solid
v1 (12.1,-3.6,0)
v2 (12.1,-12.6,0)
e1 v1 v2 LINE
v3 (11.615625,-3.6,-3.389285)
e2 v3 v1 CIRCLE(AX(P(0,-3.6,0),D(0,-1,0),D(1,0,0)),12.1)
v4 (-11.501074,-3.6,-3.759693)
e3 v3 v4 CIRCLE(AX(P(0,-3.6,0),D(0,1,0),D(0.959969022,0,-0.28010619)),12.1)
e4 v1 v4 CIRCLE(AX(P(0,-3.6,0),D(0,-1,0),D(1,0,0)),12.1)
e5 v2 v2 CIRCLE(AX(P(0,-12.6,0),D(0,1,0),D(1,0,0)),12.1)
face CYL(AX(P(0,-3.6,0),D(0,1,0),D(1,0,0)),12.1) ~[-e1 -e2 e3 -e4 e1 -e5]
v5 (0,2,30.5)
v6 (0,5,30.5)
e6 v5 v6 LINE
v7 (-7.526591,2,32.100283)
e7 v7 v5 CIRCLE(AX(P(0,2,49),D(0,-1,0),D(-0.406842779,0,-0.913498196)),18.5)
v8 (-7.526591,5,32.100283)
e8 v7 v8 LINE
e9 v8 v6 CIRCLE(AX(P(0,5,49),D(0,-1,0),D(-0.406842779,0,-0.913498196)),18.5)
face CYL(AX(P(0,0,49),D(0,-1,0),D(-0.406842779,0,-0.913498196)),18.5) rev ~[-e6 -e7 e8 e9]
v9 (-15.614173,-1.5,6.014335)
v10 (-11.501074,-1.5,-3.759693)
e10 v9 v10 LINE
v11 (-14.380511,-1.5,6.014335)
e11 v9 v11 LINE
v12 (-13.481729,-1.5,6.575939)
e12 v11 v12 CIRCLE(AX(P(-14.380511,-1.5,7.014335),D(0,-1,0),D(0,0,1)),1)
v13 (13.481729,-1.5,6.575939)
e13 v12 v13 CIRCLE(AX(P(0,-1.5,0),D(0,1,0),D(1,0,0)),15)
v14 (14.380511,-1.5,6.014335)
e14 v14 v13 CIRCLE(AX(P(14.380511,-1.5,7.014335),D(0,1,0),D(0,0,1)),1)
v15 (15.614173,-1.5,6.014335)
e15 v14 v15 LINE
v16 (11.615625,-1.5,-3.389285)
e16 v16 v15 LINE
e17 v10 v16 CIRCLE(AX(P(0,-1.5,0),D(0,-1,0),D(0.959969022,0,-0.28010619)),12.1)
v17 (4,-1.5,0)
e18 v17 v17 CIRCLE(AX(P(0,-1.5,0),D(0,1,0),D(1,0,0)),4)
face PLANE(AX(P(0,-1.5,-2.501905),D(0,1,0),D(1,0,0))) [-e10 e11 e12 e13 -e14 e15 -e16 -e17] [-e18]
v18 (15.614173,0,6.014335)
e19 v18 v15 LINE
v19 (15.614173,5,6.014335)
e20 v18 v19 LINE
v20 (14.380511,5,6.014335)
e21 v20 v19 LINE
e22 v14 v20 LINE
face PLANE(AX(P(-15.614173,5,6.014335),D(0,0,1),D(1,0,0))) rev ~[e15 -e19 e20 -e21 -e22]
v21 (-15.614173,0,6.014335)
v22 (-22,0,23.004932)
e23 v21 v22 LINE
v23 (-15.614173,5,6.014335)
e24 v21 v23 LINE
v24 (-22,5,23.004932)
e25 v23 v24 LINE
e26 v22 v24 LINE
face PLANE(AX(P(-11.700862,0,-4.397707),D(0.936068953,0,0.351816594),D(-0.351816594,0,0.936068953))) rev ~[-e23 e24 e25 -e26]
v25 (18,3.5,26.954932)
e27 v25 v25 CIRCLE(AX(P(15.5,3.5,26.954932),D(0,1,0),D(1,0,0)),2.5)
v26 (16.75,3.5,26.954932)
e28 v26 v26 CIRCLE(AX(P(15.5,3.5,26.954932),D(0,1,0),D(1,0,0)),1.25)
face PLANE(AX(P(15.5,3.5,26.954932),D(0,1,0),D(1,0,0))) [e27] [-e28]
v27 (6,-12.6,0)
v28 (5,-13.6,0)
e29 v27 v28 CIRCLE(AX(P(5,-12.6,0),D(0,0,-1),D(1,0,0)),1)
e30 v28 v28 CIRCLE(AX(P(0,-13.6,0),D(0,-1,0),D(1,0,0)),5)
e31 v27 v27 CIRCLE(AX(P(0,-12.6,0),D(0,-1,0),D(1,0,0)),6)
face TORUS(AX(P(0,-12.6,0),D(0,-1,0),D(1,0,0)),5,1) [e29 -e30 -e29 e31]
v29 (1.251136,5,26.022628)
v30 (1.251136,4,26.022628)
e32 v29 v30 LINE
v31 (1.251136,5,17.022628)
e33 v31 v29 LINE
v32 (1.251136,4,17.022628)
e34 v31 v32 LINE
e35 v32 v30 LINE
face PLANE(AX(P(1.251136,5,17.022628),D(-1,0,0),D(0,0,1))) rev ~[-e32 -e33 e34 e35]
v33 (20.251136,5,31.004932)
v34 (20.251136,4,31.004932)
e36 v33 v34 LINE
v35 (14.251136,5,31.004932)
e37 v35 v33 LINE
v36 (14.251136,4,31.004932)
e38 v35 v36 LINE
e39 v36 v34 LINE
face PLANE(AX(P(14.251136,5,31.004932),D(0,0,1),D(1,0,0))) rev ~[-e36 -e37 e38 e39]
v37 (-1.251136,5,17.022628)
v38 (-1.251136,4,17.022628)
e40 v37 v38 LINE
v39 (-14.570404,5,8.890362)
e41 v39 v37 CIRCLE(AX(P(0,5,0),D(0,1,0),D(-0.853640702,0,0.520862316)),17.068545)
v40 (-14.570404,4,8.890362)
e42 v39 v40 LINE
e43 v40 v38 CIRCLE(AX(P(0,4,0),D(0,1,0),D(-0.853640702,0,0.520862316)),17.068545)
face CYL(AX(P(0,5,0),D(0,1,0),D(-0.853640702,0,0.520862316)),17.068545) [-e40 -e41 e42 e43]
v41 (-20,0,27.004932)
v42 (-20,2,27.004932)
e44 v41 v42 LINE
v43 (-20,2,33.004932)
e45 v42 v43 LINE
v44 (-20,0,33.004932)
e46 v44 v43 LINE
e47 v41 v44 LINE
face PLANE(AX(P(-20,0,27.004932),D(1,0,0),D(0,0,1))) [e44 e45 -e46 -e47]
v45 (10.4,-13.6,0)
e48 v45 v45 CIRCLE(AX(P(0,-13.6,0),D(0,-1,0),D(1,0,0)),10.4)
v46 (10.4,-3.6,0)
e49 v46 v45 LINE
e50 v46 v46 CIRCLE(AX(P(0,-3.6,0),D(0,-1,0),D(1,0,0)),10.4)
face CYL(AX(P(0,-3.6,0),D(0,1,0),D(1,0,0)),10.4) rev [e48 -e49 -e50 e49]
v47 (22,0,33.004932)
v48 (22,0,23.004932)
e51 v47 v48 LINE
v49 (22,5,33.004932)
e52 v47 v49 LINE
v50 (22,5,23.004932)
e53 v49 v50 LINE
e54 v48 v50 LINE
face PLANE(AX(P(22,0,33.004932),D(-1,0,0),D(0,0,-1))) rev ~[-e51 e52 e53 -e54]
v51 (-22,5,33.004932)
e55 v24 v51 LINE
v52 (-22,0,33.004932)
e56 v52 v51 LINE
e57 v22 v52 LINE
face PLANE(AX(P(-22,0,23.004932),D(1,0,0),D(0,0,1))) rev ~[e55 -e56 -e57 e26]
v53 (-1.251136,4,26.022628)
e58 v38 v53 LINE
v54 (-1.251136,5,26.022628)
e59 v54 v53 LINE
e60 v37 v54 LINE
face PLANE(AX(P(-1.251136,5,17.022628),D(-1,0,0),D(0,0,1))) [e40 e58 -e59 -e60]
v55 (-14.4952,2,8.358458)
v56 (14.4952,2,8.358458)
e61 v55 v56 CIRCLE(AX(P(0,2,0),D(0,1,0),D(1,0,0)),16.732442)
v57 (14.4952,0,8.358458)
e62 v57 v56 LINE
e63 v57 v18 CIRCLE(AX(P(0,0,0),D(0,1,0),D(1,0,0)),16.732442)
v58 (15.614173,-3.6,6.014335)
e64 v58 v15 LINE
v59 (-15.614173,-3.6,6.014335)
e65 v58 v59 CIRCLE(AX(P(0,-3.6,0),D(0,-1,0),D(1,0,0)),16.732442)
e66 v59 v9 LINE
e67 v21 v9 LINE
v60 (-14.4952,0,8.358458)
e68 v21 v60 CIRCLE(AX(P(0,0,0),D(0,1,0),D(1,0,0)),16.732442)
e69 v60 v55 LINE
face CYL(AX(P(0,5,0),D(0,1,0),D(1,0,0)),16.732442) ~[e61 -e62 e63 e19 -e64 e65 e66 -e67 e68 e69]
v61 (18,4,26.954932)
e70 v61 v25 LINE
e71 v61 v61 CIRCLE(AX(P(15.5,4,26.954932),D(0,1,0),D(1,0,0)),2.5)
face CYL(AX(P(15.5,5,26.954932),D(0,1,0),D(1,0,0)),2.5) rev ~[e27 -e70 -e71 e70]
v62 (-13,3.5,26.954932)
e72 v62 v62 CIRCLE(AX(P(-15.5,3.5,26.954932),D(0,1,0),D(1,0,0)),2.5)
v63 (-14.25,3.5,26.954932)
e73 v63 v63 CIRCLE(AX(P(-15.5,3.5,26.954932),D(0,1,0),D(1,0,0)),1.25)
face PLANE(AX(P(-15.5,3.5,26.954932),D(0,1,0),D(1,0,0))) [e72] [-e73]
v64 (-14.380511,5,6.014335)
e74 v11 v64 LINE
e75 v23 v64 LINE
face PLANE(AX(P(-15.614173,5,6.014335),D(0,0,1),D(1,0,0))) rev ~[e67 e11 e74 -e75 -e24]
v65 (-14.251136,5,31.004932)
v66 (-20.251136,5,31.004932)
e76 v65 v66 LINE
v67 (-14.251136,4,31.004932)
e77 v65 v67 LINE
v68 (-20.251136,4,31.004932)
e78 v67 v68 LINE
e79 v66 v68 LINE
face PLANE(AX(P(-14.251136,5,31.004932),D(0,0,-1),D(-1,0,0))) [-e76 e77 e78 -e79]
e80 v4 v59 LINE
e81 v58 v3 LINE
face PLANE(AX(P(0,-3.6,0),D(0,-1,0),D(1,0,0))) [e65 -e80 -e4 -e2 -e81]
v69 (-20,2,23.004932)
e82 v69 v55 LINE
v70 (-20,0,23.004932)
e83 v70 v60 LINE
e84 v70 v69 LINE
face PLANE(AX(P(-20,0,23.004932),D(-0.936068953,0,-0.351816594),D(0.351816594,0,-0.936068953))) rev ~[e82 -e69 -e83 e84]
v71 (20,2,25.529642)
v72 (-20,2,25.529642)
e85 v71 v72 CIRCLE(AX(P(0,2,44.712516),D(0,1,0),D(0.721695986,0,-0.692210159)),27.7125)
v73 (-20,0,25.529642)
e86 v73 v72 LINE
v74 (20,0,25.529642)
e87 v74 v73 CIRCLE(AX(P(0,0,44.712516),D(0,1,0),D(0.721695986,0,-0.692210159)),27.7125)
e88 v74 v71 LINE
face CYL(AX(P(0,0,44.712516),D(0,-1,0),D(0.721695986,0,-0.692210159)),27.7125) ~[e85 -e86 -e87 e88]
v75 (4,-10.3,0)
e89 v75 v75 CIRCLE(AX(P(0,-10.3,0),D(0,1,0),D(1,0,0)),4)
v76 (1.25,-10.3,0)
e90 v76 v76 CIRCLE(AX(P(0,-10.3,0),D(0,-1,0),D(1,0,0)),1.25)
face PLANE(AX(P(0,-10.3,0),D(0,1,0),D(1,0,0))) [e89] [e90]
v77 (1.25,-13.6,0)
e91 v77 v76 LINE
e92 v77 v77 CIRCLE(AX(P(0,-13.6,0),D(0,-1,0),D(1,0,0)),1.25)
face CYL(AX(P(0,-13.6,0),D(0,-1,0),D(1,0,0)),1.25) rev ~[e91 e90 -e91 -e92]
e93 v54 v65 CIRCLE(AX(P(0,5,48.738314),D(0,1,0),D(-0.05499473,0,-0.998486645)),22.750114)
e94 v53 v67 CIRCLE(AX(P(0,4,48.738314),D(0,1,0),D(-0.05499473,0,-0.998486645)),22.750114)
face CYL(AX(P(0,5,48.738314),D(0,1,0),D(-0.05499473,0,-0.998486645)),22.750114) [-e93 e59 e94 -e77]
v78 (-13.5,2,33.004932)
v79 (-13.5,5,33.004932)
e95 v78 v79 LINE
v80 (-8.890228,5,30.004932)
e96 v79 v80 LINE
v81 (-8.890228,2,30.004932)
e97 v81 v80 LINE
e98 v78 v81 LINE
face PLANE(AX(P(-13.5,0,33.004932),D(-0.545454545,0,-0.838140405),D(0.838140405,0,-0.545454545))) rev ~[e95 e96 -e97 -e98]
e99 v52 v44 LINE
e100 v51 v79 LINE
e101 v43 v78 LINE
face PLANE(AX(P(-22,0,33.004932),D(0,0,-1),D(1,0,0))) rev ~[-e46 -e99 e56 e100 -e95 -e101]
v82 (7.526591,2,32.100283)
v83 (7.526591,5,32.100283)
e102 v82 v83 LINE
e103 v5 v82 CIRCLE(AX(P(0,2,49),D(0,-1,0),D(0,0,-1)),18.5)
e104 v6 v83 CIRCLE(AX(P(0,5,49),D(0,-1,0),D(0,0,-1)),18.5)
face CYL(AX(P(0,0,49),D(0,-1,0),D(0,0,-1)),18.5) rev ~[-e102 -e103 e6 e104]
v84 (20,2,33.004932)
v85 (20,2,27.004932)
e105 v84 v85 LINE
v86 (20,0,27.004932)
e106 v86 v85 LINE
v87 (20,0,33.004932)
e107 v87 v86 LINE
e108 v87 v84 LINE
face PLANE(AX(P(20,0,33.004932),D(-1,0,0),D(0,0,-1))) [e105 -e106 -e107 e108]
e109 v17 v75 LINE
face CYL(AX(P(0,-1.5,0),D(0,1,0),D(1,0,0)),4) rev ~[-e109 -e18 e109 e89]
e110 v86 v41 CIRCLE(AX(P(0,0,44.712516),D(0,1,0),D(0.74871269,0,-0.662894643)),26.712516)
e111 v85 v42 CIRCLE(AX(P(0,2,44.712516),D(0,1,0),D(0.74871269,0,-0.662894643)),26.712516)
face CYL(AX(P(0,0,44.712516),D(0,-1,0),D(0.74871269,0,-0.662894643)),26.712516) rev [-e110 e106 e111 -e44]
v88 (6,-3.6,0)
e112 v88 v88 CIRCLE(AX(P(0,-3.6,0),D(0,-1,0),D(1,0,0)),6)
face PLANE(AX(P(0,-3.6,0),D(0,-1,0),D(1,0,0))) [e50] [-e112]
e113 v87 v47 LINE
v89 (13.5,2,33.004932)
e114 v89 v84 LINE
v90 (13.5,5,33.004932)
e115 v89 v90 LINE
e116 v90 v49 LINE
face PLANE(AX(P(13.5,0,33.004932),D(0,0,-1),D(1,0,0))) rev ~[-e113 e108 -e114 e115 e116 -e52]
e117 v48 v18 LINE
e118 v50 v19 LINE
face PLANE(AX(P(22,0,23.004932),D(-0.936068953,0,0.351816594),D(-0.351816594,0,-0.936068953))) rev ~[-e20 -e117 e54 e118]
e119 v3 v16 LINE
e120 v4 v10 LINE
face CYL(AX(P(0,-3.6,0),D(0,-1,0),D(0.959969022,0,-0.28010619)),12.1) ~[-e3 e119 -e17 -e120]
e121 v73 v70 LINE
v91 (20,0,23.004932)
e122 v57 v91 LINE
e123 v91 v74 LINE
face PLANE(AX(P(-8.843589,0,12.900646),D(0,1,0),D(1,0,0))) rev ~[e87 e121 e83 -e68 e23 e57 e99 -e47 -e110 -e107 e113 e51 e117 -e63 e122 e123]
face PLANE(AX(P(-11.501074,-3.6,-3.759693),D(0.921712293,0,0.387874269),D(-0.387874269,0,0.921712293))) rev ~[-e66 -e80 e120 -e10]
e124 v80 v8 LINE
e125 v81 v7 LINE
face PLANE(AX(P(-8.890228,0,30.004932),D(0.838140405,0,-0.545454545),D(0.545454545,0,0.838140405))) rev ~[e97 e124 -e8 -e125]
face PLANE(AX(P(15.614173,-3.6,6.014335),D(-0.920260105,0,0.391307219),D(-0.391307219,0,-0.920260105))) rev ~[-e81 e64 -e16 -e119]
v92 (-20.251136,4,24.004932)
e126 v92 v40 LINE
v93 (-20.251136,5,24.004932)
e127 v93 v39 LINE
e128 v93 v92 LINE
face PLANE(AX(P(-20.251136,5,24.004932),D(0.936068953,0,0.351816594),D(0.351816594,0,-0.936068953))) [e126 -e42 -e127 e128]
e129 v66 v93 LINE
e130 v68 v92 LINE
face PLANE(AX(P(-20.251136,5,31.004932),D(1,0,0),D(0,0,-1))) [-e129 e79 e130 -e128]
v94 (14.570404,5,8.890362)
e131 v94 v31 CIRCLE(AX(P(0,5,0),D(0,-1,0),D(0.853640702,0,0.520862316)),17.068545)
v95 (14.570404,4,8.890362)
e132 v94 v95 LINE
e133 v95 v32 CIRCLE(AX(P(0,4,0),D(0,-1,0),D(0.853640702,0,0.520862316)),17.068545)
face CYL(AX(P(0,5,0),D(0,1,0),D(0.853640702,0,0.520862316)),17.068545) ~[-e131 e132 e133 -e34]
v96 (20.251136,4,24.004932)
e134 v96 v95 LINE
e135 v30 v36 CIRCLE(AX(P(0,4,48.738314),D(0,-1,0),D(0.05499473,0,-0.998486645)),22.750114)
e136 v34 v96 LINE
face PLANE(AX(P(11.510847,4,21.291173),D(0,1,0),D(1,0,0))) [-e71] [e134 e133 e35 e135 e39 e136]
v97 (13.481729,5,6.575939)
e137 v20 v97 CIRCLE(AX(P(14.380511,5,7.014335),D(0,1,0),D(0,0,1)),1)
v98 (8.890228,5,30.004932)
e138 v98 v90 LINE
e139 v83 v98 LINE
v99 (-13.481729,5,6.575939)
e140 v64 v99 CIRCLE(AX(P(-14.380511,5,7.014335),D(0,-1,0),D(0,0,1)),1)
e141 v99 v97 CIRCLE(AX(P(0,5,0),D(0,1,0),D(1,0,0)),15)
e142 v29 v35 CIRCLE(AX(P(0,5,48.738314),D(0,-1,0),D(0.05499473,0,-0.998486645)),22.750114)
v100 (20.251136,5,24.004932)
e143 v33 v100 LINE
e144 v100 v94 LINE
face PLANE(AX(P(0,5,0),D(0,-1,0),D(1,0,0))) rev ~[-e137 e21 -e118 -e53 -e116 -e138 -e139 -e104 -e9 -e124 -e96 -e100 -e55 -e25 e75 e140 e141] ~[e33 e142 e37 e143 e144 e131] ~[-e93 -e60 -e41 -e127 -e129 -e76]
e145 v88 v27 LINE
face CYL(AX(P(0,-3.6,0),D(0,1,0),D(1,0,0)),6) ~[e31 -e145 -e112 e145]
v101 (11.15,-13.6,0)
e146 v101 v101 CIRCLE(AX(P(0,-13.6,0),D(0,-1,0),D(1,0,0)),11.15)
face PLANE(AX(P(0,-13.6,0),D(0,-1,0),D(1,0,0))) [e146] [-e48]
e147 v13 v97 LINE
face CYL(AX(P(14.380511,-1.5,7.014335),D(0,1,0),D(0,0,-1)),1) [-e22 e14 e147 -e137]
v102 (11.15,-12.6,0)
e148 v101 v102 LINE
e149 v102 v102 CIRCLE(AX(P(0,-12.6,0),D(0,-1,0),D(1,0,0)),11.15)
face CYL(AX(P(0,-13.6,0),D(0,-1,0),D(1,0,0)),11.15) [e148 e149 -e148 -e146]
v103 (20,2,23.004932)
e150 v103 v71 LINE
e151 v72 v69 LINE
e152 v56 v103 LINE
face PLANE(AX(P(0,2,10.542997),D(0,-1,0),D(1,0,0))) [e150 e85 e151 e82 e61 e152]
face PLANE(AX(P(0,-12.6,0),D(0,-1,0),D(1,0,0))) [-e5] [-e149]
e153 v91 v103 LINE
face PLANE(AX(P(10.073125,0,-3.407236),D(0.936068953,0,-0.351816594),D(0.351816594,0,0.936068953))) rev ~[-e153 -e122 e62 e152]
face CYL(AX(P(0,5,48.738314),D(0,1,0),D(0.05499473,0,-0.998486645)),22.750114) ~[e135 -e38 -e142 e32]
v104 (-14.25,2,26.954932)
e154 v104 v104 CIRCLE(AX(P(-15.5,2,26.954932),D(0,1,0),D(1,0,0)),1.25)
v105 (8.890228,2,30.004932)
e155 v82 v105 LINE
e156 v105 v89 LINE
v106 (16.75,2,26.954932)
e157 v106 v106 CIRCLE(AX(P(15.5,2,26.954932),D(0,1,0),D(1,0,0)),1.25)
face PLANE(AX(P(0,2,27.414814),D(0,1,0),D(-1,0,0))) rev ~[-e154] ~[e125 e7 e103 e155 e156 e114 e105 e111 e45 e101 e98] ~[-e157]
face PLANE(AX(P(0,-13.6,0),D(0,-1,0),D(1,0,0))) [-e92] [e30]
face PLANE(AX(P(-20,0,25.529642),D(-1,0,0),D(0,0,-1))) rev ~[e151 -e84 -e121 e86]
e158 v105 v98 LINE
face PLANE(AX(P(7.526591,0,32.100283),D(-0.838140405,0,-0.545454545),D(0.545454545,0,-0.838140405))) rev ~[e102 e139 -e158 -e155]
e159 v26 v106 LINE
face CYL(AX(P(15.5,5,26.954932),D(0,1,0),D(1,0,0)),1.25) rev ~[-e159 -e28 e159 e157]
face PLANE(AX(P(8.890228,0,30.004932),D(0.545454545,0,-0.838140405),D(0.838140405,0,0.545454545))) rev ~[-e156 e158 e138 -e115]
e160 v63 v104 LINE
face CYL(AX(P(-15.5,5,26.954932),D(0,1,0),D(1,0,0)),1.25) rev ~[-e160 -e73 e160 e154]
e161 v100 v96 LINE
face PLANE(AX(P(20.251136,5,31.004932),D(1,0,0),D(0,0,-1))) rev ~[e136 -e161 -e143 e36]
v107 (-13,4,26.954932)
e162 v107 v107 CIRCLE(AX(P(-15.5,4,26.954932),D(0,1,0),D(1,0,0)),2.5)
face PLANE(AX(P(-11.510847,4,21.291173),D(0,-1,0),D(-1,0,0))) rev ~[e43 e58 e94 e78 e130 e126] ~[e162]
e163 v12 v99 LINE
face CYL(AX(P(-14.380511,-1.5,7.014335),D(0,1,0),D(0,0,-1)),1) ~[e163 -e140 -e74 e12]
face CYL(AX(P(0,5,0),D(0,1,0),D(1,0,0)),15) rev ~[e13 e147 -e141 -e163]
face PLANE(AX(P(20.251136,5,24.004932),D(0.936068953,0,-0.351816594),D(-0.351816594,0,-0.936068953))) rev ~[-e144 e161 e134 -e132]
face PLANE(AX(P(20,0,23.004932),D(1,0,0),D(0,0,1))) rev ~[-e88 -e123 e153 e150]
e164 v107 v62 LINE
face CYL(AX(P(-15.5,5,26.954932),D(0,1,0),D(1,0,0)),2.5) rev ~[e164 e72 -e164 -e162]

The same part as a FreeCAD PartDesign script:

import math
import FreeCAD as App
import Part
import Sketcher

V = App.Vector


def edges_at(feature, points):
    """Names of the edges that pass closest to the given points."""
    edges = feature.Shape.Edges
    near = lambda p: min(range(len(edges)), key=lambda i: edges[i].distToShape(Part.Vertex(*p))[0])
    return sorted({f"Edge{near(p) + 1}" for p in points})

doc = App.newDocument("Part")
params = doc.addObject("Spreadsheet::Sheet", "Params")
for row, (alias, value) in enumerate([
    ("sketch1_radius", "18.5 mm"),
    ("sketch1_radius2", "12.5 mm"),
    ("sketch1_height", "10 mm"),
    ("sketch1_width", "8.5 mm"),
    ("sketch1_length", "5.5 mm"),
    ("pad1_length", "5 mm"),
    ("sketch2_width", "40 mm"),
    ("sketch2_height", "6 mm"),
    ("pocket1_length", "2 mm"),
    ("pocket2_length", "2 mm"),
    ("pad2_length", "8.6 mm"),
    ("sketch5_diameter", "24.2 mm"),
    ("sketch5_diameter2", "20.8 mm"),
    ("pad3_length", "10 mm"),
    ("sketch6_diameter", "12 mm"),
    ("pad4_length", "10 mm"),
    ("sketch7_width", "6 mm"),
    ("sketch7_height", "9 mm"),
    ("sketch7_height2", "7 mm"),
    ("pocket3_length", "1 mm"),
    ("sketch8_diameter", "2.5 mm"),
    ("sketch9_diameter", "5 mm"),
    ("pocket5_length", "1.5 mm"),
    ("sketch10_diameter", "30 mm"),
    ("pocket6_length", "6.5 mm"),
    ("pocket7_length", "6.5 mm"),
    ("sketch12_diameter", "2.5 mm"),
    ("pocket8_length", "6.5 mm"),
    ("fillet_radius", "1 mm"),
    ("sketch13_diameter", "22.3 mm"),
    ("pocket9_length", "1 mm"),
    ("sketch14_diameter", "8 mm"),
    ("pocket10_length", "8.8 mm"),
    ("fillet2_radius", "1 mm"),
    ("sketch15_radius", "12.1 mm"),
], start=1):
    params.set(f"A{row}", alias)
    params.set(f"B{row}", "=" + value)
    params.setAlias(f"B{row}", alias)

body = doc.addObject("PartDesign::Body", "Body")

sketch1 = body.newObject("Sketcher::SketchObject", "Sketch")
sketch1.AttachmentSupport = (doc.getObject("XZ_Plane"), [""])
sketch1.MapMode = "FlatFace"
sketch1.addGeometry([
    Part.LineSegment(V(-22, 23.004932, 0), V(-22, 33.004932, 0)),
    Part.LineSegment(V(-22, 33.004932, 0), V(-13.5, 33.004932, 0)),
    Part.LineSegment(V(-13.5, 33.004932, 0), V(-8.890228, 30.004932, 0)),
    Part.LineSegment(V(-8.890228, 30.004932, 0), V(-7.526591, 32.100283, 0)),
    Part.ArcOfCircle(Part.Circle(V(0, 49, 0), V(0, 0, 1), 18.5), math.radians(-114.006657), math.radians(-90)),
    Part.ArcOfCircle(Part.Circle(V(0, 49, 0), V(0, 0, 1), 18.5), math.radians(-90), math.radians(-65.993343)),
    Part.LineSegment(V(7.526591, 32.100283, 0), V(8.890228, 30.004932, 0)),
    Part.LineSegment(V(8.890228, 30.004932, 0), V(13.5, 33.004932, 0)),
    Part.LineSegment(V(13.5, 33.004932, 0), V(22, 33.004932, 0)),
    Part.LineSegment(V(22, 33.004932, 0), V(22, 23.004932, 0)),
    Part.LineSegment(V(22, 23.004932, 0), V(11.700862, -4.397707, 0)),
    Part.ArcOfCircle(Part.Circle(V(0, 0, 0), V(0, 0, 1), 12.5), math.radians(-90), math.radians(-20.598466)),
    Part.ArcOfCircle(Part.Circle(V(0, 0, 0), V(0, 0, 1), 12.5), math.radians(-159.401534), math.radians(-90)),
    Part.LineSegment(V(-11.700862, -4.397707, 0), V(-22, 23.004932, 0)),
], False)
sketch1.addConstraint([
    Sketcher.Constraint("Coincident", 0, 2, 1, 1),
    Sketcher.Constraint("Coincident", 1, 2, 2, 1),
    Sketcher.Constraint("Coincident", 2, 2, 3, 1),
    Sketcher.Constraint("Coincident", 3, 2, 4, 1),
    Sketcher.Constraint("Tangent", 4, 2, 5, 1),
    Sketcher.Constraint("Coincident", 5, 2, 6, 1),
    Sketcher.Constraint("Coincident", 6, 2, 7, 1),
    Sketcher.Constraint("Coincident", 7, 2, 8, 1),
    Sketcher.Constraint("Coincident", 8, 2, 9, 1),
    Sketcher.Constraint("Coincident", 9, 2, 10, 1),
    Sketcher.Constraint("Tangent", 10, 2, 11, 2),
    Sketcher.Constraint("Tangent", 11, 1, 12, 2),
    Sketcher.Constraint("Tangent", 12, 1, 13, 1),
    Sketcher.Constraint("Coincident", 13, 2, 0, 1),
    Sketcher.Constraint("Vertical", 0),
    Sketcher.Constraint("Horizontal", 1),
    Sketcher.Constraint("Horizontal", 8),
    Sketcher.Constraint("Vertical", 9),
    Sketcher.Constraint("Coincident", 11, 3, -1, 1),
    Sketcher.Constraint("Equal", 4, 5),
    Sketcher.Constraint("Equal", 11, 12),
    Sketcher.Constraint("Symmetric", 3, 2, 5, 2, -2),
    Sketcher.Constraint("Symmetric", 2, 2, 6, 2, -2),
    Sketcher.Constraint("Symmetric", 1, 2, 7, 2, -2),
    Sketcher.Constraint("Symmetric", 9, 2, 13, 2, -2),
    Sketcher.Constraint("PointOnObject", 4, 2, -2),
    Sketcher.Constraint("PointOnObject", 11, 1, -2),
    Sketcher.Constraint("Perpendicular", 2, 3),
    Sketcher.Constraint("Radius", 4, 18.5),
    Sketcher.Constraint("Radius", 11, 12.5),
    Sketcher.Constraint("DistanceY", 0, 1, 0, 2, 10.0),
    Sketcher.Constraint("DistanceX", 1, 1, 1, 2, 8.5),
    Sketcher.Constraint("DistanceY", -1, 1, 4, 3, 49.0),
    Sketcher.Constraint("DistanceX", 0, 2, -1, 1, 22.0),
    Sketcher.Constraint("DistanceY", 2, 2, 1, 2, 3.0),
    Sketcher.Constraint("Distance", 2, 5.5),
    Sketcher.Constraint("Distance", 3, 2.5),
])
sketch1.setExpression("Constraints[28]", "Params.sketch1_radius")
sketch1.setExpression("Constraints[29]", "Params.sketch1_radius2")
sketch1.setExpression("Constraints[30]", "Params.sketch1_height")
sketch1.setExpression("Constraints[31]", "Params.sketch1_width")
sketch1.setExpression("Constraints[35]", "Params.sketch1_length")
pad1 = body.newObject("PartDesign::Pad", "Pad")
pad1.Profile = sketch1
pad1.setExpression("Length", "Params.pad1_length")
pad1.Reversed = True

sketch2 = body.newObject("Sketcher::SketchObject", "Sketch001")
sketch2.AttachmentSupport = (doc.getObject("XZ_Plane"), [""])
sketch2.MapMode = "FlatFace"
sketch2.addGeometry([
    Part.LineSegment(V(20, 27.004932, 0), V(20, 33.004932, 0)),
    Part.LineSegment(V(20, 33.004932, 0), V(-20, 33.004932, 0)),
    Part.LineSegment(V(-20, 33.004932, 0), V(-20, 27.004932, 0)),
    Part.ArcOfCircle(Part.Circle(V(0, 44.712516, 0), V(0, 0, 1), 26.712516), math.radians(-138.47899), math.radians(-41.52101)),
], False)
sketch2.addConstraint([
    Sketcher.Constraint("Coincident", 0, 2, 1, 1),
    Sketcher.Constraint("Coincident", 1, 2, 2, 1),
    Sketcher.Constraint("Coincident", 2, 2, 3, 1),
    Sketcher.Constraint("Coincident", 3, 2, 0, 1),
    Sketcher.Constraint("Vertical", 0),
    Sketcher.Constraint("Horizontal", 1),
    Sketcher.Constraint("Vertical", 2),
    Sketcher.Constraint("Symmetric", 2, 2, 3, 2, -2),
    Sketcher.Constraint("DistanceX", 1, 2, 1, 1, 40.0),
    Sketcher.Constraint("DistanceY", 0, 1, 0, 2, 6.0),
    Sketcher.Constraint("Radius", 3, 26.712516),
    Sketcher.Constraint("DistanceY", -1, 1, 3, 3, 44.712516),
])
sketch2.setExpression("Constraints[8]", "Params.sketch2_width")
sketch2.setExpression("Constraints[9]", "Params.sketch2_height")
pocket1 = body.newObject("PartDesign::Pocket", "Pocket")
pocket1.Profile = sketch2
pocket1.setExpression("Length", "Params.pocket1_length")

sketch3 = body.newObject("Sketcher::SketchObject", "Sketch002")
sketch3.AttachmentSupport = (doc.getObject("XZ_Plane"), [""])
sketch3.MapMode = "FlatFace"
sketch3.addGeometry([
    Part.LineSegment(V(-20, 23.004932, 0), V(-10.073125, -3.407236, 0)),
    Part.ArcOfCircle(Part.Circle(V(0, 0, 0), V(0, 0, 1), 10.633772), math.radians(-161.311887), math.radians(-18.688113)),
    Part.LineSegment(V(10.073125, -3.407236, 0), V(20, 23.004932, 0)),
    Part.LineSegment(V(20, 23.004932, 0), V(20, 25.529642, 0)),
    Part.ArcOfCircle(Part.Circle(V(0, 44.712516, 0), V(0, 0, 1), 27.7125), math.radians(-136.194682), math.radians(-43.805318)),
    Part.LineSegment(V(-20, 25.529642, 0), V(-20, 23.004932, 0)),
], False)
sketch3.addConstraint([
    Sketcher.Constraint("Coincident", 0, 2, 1, 1),
    Sketcher.Constraint("Coincident", 1, 2, 2, 1),
    Sketcher.Constraint("Coincident", 2, 2, 3, 1),
    Sketcher.Constraint("Coincident", 3, 2, 4, 2),
    Sketcher.Constraint("Coincident", 4, 1, 5, 1),
    Sketcher.Constraint("Coincident", 5, 2, 0, 1),
    Sketcher.Constraint("Vertical", 3),
    Sketcher.Constraint("Vertical", 5),
    Sketcher.Constraint("Coincident", 1, 3, -1, 1),
    Sketcher.Constraint("Symmetric", 3, 2, 4, 1, -2),
    Sketcher.Constraint("Horizontal", 0, 2, 1, 2),
    Sketcher.Constraint("Horizontal", 2, 2, 5, 2),
    Sketcher.Constraint("DistanceX", -1, 1, 2, 2, 20.0),
    Sketcher.Constraint("Radius", 4, 27.7125),
    Sketcher.Constraint("Radius", 1, 10.633772),
    Sketcher.Constraint("DistanceY", 3, 1, 3, 2, 2.52471),
    Sketcher.Constraint("Distance", 0, 28.21605),
    Sketcher.Constraint("DistanceX", 0, 2, 1, 2, 20.146251),
])
pocket2 = body.newObject("PartDesign::Pocket", "Pocket001")
pocket2.Profile = sketch3
pocket2.setExpression("Length", "Params.pocket2_length")

sketch4 = body.newObject("Sketcher::SketchObject", "Sketch003")
sketch4.AttachmentSupport = (doc.getObject("XZ_Plane"), [""])
sketch4.MapMode = "FlatFace"
sketch4.AttachmentOffset = App.Placement(V(0, 0, -5), App.Rotation())
sketch4.addGeometry(Part.Circle(V(0, 0, 0), V(0, 0, 1), 16.732442), False)
sketch4.addConstraint([
    Sketcher.Constraint("Coincident", 0, 3, -1, 1),
    Sketcher.Constraint("Diameter", 0, 33.464885),
])
pad2 = body.newObject("PartDesign::Pad", "Pad001")
pad2.Profile = sketch4
pad2.setExpression("Length", "Params.pad2_length")

sketch5 = body.newObject("Sketcher::SketchObject", "Sketch004")
sketch5.AttachmentSupport = (doc.getObject("XZ_Plane"), [""])
sketch5.MapMode = "FlatFace"
sketch5.AttachmentOffset = App.Placement(V(0, 0, 3.6), App.Rotation())
sketch5.addGeometry([
    Part.Circle(V(0, 0, 0), V(0, 0, 1), 12.1),
    Part.Circle(V(0, 0, 0), V(0, 0, 1), 10.4),
], False)
sketch5.addConstraint([
    Sketcher.Constraint("Coincident", 0, 3, -1, 1),
    Sketcher.Constraint("Coincident", 1, 3, -1, 1),
    Sketcher.Constraint("Diameter", 0, 24.2),
    Sketcher.Constraint("Diameter", 1, 20.8),
])
sketch5.setExpression("Constraints[2]", "Params.sketch5_diameter")
sketch5.setExpression("Constraints[3]", "Params.sketch5_diameter2")
pad3 = body.newObject("PartDesign::Pad", "Pad002")
pad3.Profile = sketch5
pad3.setExpression("Length", "Params.pad3_length")

sketch6 = body.newObject("Sketcher::SketchObject", "Sketch005")
sketch6.AttachmentSupport = (doc.getObject("XZ_Plane"), [""])
sketch6.MapMode = "FlatFace"
sketch6.AttachmentOffset = App.Placement(V(0, 0, 3.6), App.Rotation())
sketch6.addGeometry(Part.Circle(V(0, 0, 0), V(0, 0, 1), 6), False)
sketch6.addConstraint([
    Sketcher.Constraint("Coincident", 0, 3, -1, 1),
    Sketcher.Constraint("Diameter", 0, 12.0),
])
sketch6.setExpression("Constraints[1]", "Params.sketch6_diameter")
pad4 = body.newObject("PartDesign::Pad", "Pad003")
pad4.Profile = sketch6
pad4.setExpression("Length", "Params.pad4_length")

sketch7 = body.newObject("Sketcher::SketchObject", "Sketch006")
sketch7.AttachmentSupport = (doc.getObject("XZ_Plane"), [""])
sketch7.MapMode = "FlatFace"
sketch7.AttachmentOffset = App.Placement(V(0, 0, -5), App.Rotation())
sketch7.addGeometry([
    Part.LineSegment(V(-1.251136, 26.022628, 0), V(-1.251136, 17.022628, 0)),
    Part.ArcOfCircle(Part.Circle(V(0, 0, 0), V(0, 0, 1), 17.068545), math.radians(94.203591), math.radians(148.609888)),
    Part.LineSegment(V(-14.570404, 8.890362, 0), V(-20.251136, 24.004932, 0)),
    Part.LineSegment(V(-20.251136, 24.004932, 0), V(-20.251136, 31.004932, 0)),
    Part.LineSegment(V(-20.251136, 31.004932, 0), V(-14.251136, 31.004932, 0)),
    Part.ArcOfCircle(Part.Circle(V(0, 48.738314, 0), V(0, 0, 1), 22.750114), math.radians(-128.786519), math.radians(-93.152556)),
    Part.LineSegment(V(20.251136, 24.004932, 0), V(14.570404, 8.890362, 0)),
    Part.ArcOfCircle(Part.Circle(V(0, 0, 0), V(0, 0, 1), 17.068545), math.radians(31.390112), math.radians(85.796409)),
    Part.LineSegment(V(1.251136, 17.022628, 0), V(1.251136, 26.022628, 0)),
    Part.ArcOfCircle(Part.Circle(V(0, 48.738314, 0), V(0, 0, 1), 22.750114), math.radians(-86.847444), math.radians(-51.213481)),
    Part.LineSegment(V(14.251136, 31.004932, 0), V(20.251136, 31.004932, 0)),
    Part.LineSegment(V(20.251136, 31.004932, 0), V(20.251136, 24.004932, 0)),
], False)
sketch7.addConstraint([
    Sketcher.Constraint("Coincident", 0, 2, 1, 1),
    Sketcher.Constraint("Coincident", 1, 2, 2, 1),
    Sketcher.Constraint("Coincident", 2, 2, 3, 1),
    Sketcher.Constraint("Coincident", 3, 2, 4, 1),
    Sketcher.Constraint("Coincident", 4, 2, 5, 1),
    Sketcher.Constraint("Coincident", 5, 2, 0, 1),
    Sketcher.Constraint("Coincident", 6, 2, 7, 1),
    Sketcher.Constraint("Coincident", 7, 2, 8, 1),
    Sketcher.Constraint("Coincident", 8, 2, 9, 1),
    Sketcher.Constraint("Coincident", 9, 2, 10, 1),
    Sketcher.Constraint("Coincident", 10, 2, 11, 1),
    Sketcher.Constraint("Coincident", 11, 2, 6, 1),
    Sketcher.Constraint("Vertical", 0),
    Sketcher.Constraint("Vertical", 3),
    Sketcher.Constraint("Horizontal", 4),
    Sketcher.Constraint("Vertical", 8),
    Sketcher.Constraint("Horizontal", 10),
    Sketcher.Constraint("Vertical", 11),
    Sketcher.Constraint("Coincident", 1, 3, -1, 1),
    Sketcher.Constraint("Coincident", 7, 3, -1, 1),
    Sketcher.Constraint("Coincident", 9, 3, 5, 3),
    Sketcher.Constraint("Equal", 1, 7),
    Sketcher.Constraint("Equal", 5, 9),
    Sketcher.Constraint("Symmetric", 5, 2, 8, 2, -2),
    Sketcher.Constraint("Symmetric", 3, 2, 10, 2, -2),
    Sketcher.Constraint("Horizontal", 1, 2, 6, 2),
    Sketcher.Constraint("Horizontal", 2, 2, 11, 2),
    Sketcher.Constraint("DistanceX", 4, 1, 4, 2, 6.0),
    Sketcher.Constraint("DistanceY", 0, 2, 0, 1, 9.0),
    Sketcher.Constraint("DistanceY", 3, 1, 3, 2, 7.0),
    Sketcher.Constraint("DistanceX", 2, 2, 0, 2, 19.0),
    Sketcher.Constraint("Radius", 1, 17.068545),
    Sketcher.Constraint("Radius", 5, 22.750114),
    Sketcher.Constraint("DistanceY", -1, 1, 0, 2, 17.022628),
    Sketcher.Constraint("DistanceY", -1, 1, 1, 2, 8.890362),
])
sketch7.setExpression("Constraints[27]", "Params.sketch7_width")
sketch7.setExpression("Constraints[28]", "Params.sketch7_height")
sketch7.setExpression("Constraints[29]", "Params.sketch7_height2")
pocket3 = body.newObject("PartDesign::Pocket", "Pocket002")
pocket3.Profile = sketch7
pocket3.setExpression("Length", "Params.pocket3_length")
pocket3.Reversed = True

sketch8 = body.newObject("Sketcher::SketchObject", "Sketch007")
sketch8.AttachmentSupport = (doc.getObject("XZ_Plane"), [""])
sketch8.MapMode = "FlatFace"
sketch8.AttachmentOffset = App.Placement(V(0, 0, -5), App.Rotation())
sketch8.addGeometry([
    Part.Circle(V(-15.5, 26.954932, 0), V(0, 0, 1), 1.25),
    Part.Circle(V(15.5, 26.954932, 0), V(0, 0, 1), 1.25),
], False)
sketch8.addConstraint([
    Sketcher.Constraint("Equal", 0, 1),
    Sketcher.Constraint("Symmetric", 0, 3, 1, 3, -2),
    Sketcher.Constraint("Diameter", 0, 2.5),
    Sketcher.Constraint("DistanceX", 0, 3, 1, 3, 31.0),
    Sketcher.Constraint("DistanceY", -1, 1, 0, 3, 26.954932),
])
sketch8.setExpression("Constraints[2]", "Params.sketch8_diameter")
pocket4 = body.newObject("PartDesign::Pocket", "Pocket003")
pocket4.Profile = sketch8
pocket4.Type = "ThroughAll"
pocket4.Reversed = True

sketch9 = body.newObject("Sketcher::SketchObject", "Sketch008")
sketch9.AttachmentSupport = (doc.getObject("XZ_Plane"), [""])
sketch9.MapMode = "FlatFace"
sketch9.AttachmentOffset = App.Placement(V(0, 0, -5), App.Rotation())
sketch9.addGeometry([
    Part.Circle(V(-15.5, 26.954932, 0), V(0, 0, 1), 2.5),
    Part.Circle(V(15.5, 26.954932, 0), V(0, 0, 1), 2.5),
], False)
sketch9.addConstraint([
    Sketcher.Constraint("Equal", 0, 1),
    Sketcher.Constraint("Symmetric", 0, 3, 1, 3, -2),
    Sketcher.Constraint("Diameter", 0, 5.0),
    Sketcher.Constraint("DistanceX", 0, 3, 1, 3, 31.0),
    Sketcher.Constraint("DistanceY", -1, 1, 0, 3, 26.954932),
])
sketch9.setExpression("Constraints[2]", "Params.sketch9_diameter")
pocket5 = body.newObject("PartDesign::Pocket", "Pocket004")
pocket5.Profile = sketch9
pocket5.setExpression("Length", "Params.pocket5_length")
pocket5.Reversed = True

sketch10 = body.newObject("Sketcher::SketchObject", "Sketch009")
sketch10.AttachmentSupport = (doc.getObject("XZ_Plane"), [""])
sketch10.MapMode = "FlatFace"
sketch10.AttachmentOffset = App.Placement(V(0, 0, -5), App.Rotation())
sketch10.addGeometry(Part.Circle(V(0, 0, 0), V(0, 0, 1), 15), False)
sketch10.addConstraint([
    Sketcher.Constraint("Coincident", 0, 3, -1, 1),
    Sketcher.Constraint("Diameter", 0, 30.0),
])
sketch10.setExpression("Constraints[1]", "Params.sketch10_diameter")
pocket6 = body.newObject("PartDesign::Pocket", "Pocket005")
pocket6.Profile = sketch10
pocket6.setExpression("Length", "Params.pocket6_length")
pocket6.Reversed = True

sketch11 = body.newObject("Sketcher::SketchObject", "Sketch010")
sketch11.AttachmentSupport = (doc.getObject("XZ_Plane"), [""])
sketch11.MapMode = "FlatFace"
sketch11.AttachmentOffset = App.Placement(V(0, 0, -5), App.Rotation())
sketch11.addGeometry([
    Part.LineSegment(V(-15.614173, 6.014335, 0), V(15.614173, 6.014335, 0)),
    Part.ArcOfCircle(Part.Circle(V(0, 0, 0), V(0, 0, 1), 16.732442), math.radians(158.934097), math.radians(381.065903)),
], False)
sketch11.addConstraint([
    Sketcher.Constraint("Coincident", 0, 1, 1, 1),
    Sketcher.Constraint("Coincident", 1, 2, 0, 2),
    Sketcher.Constraint("Horizontal", 0),
    Sketcher.Constraint("Coincident", 1, 3, -1, 1),
    Sketcher.Constraint("Radius", 1, 16.732442),
    Sketcher.Constraint("DistanceX", 0, 1, 0, 2, 31.228346),
])
pocket7 = body.newObject("PartDesign::Pocket", "Pocket006")
pocket7.Profile = sketch11
pocket7.setExpression("Length", "Params.pocket7_length")
pocket7.Reversed = True

sketch12 = body.newObject("Sketcher::SketchObject", "Sketch011")
sketch12.AttachmentSupport = (doc.getObject("XZ_Plane"), [""])
sketch12.MapMode = "FlatFace"
sketch12.AttachmentOffset = App.Placement(V(0, 0, 13.6), App.Rotation())
sketch12.addGeometry(Part.Circle(V(0, 0, 0), V(0, 0, 1), 1.25), False)
sketch12.addConstraint([
    Sketcher.Constraint("Coincident", 0, 3, -1, 1),
    Sketcher.Constraint("Diameter", 0, 2.5),
])
sketch12.setExpression("Constraints[1]", "Params.sketch12_diameter")
pocket8 = body.newObject("PartDesign::Pocket", "Pocket007")
pocket8.Profile = sketch12
pocket8.setExpression("Length", "Params.pocket8_length")
doc.recompute()

fillet = body.newObject("PartDesign::Fillet", "Fillet")
fillet.Base = (pocket8, edges_at(pocket8, [(-6, -13.6, 0)]))
fillet.setExpression("Radius", "Params.fillet_radius")

sketch13 = body.newObject("Sketcher::SketchObject", "Sketch012")
sketch13.AttachmentSupport = (doc.getObject("XZ_Plane"), [""])
sketch13.MapMode = "FlatFace"
sketch13.AttachmentOffset = App.Placement(V(0, 0, 13.6), App.Rotation())
sketch13.addGeometry([
    Part.Circle(V(0, 0, 0), V(0, 0, 1), 12.50393),
    Part.Circle(V(0, 0, 0), V(0, 0, 1), 11.15),
], False)
sketch13.addConstraint([
    Sketcher.Constraint("Coincident", 0, 3, -1, 1),
    Sketcher.Constraint("Coincident", 1, 3, -1, 1),
    Sketcher.Constraint("Diameter", 1, 22.3),
    Sketcher.Constraint("Diameter", 0, 25.00786),
])
sketch13.setExpression("Constraints[2]", "Params.sketch13_diameter")
pocket9 = body.newObject("PartDesign::Pocket", "Pocket008")
pocket9.Profile = sketch13
pocket9.setExpression("Length", "Params.pocket9_length")

sketch14 = body.newObject("Sketcher::SketchObject", "Sketch013")
sketch14.AttachmentSupport = (doc.getObject("XZ_Plane"), [""])
sketch14.MapMode = "FlatFace"
sketch14.AttachmentOffset = App.Placement(V(0, 0, 1.5), App.Rotation())
sketch14.addGeometry(Part.Circle(V(0, 0, 0), V(0, 0, 1), 4), False)
sketch14.addConstraint([
    Sketcher.Constraint("Coincident", 0, 3, -1, 1),
    Sketcher.Constraint("Diameter", 0, 8.0),
])
sketch14.setExpression("Constraints[1]", "Params.sketch14_diameter")
pocket10 = body.newObject("PartDesign::Pocket", "Pocket009")
pocket10.Profile = sketch14
pocket10.setExpression("Length", "Params.pocket10_length")
pocket10.Reversed = True
doc.recompute()

fillet2 = body.newObject("PartDesign::Fillet", "Fillet001")
fillet2.Base = (pocket10, edges_at(pocket10, [(13.741, 1.75, 6.014), (-13.741, 1.75, 6.014)]))
fillet2.setExpression("Radius", "Params.fillet2_radius")

sketch15 = body.newObject("Sketcher::SketchObject", "Sketch014")
sketch15.AttachmentSupport = (doc.getObject("XZ_Plane"), [""])
sketch15.MapMode = "FlatFace"
sketch15.AttachmentOffset = App.Placement(V(0, 0, 3.6), App.Rotation())
sketch15.addGeometry([
    Part.LineSegment(V(15.614173, 6.014335, 0), V(11.615625, -3.389285, 0)),
    Part.ArcOfCircle(Part.Circle(V(0, 0, 0), V(0, 0, 1), 12.1), math.radians(-161.897467), math.radians(-16.266543)),
    Part.LineSegment(V(-11.501074, -3.759693, 0), V(-15.614173, 6.014335, 0)),
    Part.ArcOfCircle(Part.Circle(V(0, 0, 0), V(0, 0, 1), 16.732442), math.radians(158.934097), math.radians(381.065903)),
], False)
sketch15.addConstraint([
    Sketcher.Constraint("Coincident", 0, 2, 1, 2),
    Sketcher.Constraint("Coincident", 1, 1, 2, 1),
    Sketcher.Constraint("Coincident", 2, 2, 3, 1),
    Sketcher.Constraint("Coincident", 3, 2, 0, 1),
    Sketcher.Constraint("Coincident", 1, 3, -1, 1),
    Sketcher.Constraint("Coincident", 3, 3, -1, 1),
    Sketcher.Constraint("Horizontal", 2, 2, 3, 2),
    Sketcher.Constraint("Radius", 1, 12.1),
    Sketcher.Constraint("Radius", 3, 16.732442),
    Sketcher.Constraint("DistanceX", 1, 1, 0, 2, 23.116699),
    Sketcher.Constraint("DistanceX", 2, 2, 1, 1, 4.113099),
    Sketcher.Constraint("DistanceY", 1, 1, 0, 2, 0.370408),
])
sketch15.setExpression("Constraints[7]", "Params.sketch15_radius")
pocket11 = body.newObject("PartDesign::Pocket", "Pocket010")
pocket11.Profile = sketch15
pocket11.Type = "ThroughAll"

doc.recompute()
